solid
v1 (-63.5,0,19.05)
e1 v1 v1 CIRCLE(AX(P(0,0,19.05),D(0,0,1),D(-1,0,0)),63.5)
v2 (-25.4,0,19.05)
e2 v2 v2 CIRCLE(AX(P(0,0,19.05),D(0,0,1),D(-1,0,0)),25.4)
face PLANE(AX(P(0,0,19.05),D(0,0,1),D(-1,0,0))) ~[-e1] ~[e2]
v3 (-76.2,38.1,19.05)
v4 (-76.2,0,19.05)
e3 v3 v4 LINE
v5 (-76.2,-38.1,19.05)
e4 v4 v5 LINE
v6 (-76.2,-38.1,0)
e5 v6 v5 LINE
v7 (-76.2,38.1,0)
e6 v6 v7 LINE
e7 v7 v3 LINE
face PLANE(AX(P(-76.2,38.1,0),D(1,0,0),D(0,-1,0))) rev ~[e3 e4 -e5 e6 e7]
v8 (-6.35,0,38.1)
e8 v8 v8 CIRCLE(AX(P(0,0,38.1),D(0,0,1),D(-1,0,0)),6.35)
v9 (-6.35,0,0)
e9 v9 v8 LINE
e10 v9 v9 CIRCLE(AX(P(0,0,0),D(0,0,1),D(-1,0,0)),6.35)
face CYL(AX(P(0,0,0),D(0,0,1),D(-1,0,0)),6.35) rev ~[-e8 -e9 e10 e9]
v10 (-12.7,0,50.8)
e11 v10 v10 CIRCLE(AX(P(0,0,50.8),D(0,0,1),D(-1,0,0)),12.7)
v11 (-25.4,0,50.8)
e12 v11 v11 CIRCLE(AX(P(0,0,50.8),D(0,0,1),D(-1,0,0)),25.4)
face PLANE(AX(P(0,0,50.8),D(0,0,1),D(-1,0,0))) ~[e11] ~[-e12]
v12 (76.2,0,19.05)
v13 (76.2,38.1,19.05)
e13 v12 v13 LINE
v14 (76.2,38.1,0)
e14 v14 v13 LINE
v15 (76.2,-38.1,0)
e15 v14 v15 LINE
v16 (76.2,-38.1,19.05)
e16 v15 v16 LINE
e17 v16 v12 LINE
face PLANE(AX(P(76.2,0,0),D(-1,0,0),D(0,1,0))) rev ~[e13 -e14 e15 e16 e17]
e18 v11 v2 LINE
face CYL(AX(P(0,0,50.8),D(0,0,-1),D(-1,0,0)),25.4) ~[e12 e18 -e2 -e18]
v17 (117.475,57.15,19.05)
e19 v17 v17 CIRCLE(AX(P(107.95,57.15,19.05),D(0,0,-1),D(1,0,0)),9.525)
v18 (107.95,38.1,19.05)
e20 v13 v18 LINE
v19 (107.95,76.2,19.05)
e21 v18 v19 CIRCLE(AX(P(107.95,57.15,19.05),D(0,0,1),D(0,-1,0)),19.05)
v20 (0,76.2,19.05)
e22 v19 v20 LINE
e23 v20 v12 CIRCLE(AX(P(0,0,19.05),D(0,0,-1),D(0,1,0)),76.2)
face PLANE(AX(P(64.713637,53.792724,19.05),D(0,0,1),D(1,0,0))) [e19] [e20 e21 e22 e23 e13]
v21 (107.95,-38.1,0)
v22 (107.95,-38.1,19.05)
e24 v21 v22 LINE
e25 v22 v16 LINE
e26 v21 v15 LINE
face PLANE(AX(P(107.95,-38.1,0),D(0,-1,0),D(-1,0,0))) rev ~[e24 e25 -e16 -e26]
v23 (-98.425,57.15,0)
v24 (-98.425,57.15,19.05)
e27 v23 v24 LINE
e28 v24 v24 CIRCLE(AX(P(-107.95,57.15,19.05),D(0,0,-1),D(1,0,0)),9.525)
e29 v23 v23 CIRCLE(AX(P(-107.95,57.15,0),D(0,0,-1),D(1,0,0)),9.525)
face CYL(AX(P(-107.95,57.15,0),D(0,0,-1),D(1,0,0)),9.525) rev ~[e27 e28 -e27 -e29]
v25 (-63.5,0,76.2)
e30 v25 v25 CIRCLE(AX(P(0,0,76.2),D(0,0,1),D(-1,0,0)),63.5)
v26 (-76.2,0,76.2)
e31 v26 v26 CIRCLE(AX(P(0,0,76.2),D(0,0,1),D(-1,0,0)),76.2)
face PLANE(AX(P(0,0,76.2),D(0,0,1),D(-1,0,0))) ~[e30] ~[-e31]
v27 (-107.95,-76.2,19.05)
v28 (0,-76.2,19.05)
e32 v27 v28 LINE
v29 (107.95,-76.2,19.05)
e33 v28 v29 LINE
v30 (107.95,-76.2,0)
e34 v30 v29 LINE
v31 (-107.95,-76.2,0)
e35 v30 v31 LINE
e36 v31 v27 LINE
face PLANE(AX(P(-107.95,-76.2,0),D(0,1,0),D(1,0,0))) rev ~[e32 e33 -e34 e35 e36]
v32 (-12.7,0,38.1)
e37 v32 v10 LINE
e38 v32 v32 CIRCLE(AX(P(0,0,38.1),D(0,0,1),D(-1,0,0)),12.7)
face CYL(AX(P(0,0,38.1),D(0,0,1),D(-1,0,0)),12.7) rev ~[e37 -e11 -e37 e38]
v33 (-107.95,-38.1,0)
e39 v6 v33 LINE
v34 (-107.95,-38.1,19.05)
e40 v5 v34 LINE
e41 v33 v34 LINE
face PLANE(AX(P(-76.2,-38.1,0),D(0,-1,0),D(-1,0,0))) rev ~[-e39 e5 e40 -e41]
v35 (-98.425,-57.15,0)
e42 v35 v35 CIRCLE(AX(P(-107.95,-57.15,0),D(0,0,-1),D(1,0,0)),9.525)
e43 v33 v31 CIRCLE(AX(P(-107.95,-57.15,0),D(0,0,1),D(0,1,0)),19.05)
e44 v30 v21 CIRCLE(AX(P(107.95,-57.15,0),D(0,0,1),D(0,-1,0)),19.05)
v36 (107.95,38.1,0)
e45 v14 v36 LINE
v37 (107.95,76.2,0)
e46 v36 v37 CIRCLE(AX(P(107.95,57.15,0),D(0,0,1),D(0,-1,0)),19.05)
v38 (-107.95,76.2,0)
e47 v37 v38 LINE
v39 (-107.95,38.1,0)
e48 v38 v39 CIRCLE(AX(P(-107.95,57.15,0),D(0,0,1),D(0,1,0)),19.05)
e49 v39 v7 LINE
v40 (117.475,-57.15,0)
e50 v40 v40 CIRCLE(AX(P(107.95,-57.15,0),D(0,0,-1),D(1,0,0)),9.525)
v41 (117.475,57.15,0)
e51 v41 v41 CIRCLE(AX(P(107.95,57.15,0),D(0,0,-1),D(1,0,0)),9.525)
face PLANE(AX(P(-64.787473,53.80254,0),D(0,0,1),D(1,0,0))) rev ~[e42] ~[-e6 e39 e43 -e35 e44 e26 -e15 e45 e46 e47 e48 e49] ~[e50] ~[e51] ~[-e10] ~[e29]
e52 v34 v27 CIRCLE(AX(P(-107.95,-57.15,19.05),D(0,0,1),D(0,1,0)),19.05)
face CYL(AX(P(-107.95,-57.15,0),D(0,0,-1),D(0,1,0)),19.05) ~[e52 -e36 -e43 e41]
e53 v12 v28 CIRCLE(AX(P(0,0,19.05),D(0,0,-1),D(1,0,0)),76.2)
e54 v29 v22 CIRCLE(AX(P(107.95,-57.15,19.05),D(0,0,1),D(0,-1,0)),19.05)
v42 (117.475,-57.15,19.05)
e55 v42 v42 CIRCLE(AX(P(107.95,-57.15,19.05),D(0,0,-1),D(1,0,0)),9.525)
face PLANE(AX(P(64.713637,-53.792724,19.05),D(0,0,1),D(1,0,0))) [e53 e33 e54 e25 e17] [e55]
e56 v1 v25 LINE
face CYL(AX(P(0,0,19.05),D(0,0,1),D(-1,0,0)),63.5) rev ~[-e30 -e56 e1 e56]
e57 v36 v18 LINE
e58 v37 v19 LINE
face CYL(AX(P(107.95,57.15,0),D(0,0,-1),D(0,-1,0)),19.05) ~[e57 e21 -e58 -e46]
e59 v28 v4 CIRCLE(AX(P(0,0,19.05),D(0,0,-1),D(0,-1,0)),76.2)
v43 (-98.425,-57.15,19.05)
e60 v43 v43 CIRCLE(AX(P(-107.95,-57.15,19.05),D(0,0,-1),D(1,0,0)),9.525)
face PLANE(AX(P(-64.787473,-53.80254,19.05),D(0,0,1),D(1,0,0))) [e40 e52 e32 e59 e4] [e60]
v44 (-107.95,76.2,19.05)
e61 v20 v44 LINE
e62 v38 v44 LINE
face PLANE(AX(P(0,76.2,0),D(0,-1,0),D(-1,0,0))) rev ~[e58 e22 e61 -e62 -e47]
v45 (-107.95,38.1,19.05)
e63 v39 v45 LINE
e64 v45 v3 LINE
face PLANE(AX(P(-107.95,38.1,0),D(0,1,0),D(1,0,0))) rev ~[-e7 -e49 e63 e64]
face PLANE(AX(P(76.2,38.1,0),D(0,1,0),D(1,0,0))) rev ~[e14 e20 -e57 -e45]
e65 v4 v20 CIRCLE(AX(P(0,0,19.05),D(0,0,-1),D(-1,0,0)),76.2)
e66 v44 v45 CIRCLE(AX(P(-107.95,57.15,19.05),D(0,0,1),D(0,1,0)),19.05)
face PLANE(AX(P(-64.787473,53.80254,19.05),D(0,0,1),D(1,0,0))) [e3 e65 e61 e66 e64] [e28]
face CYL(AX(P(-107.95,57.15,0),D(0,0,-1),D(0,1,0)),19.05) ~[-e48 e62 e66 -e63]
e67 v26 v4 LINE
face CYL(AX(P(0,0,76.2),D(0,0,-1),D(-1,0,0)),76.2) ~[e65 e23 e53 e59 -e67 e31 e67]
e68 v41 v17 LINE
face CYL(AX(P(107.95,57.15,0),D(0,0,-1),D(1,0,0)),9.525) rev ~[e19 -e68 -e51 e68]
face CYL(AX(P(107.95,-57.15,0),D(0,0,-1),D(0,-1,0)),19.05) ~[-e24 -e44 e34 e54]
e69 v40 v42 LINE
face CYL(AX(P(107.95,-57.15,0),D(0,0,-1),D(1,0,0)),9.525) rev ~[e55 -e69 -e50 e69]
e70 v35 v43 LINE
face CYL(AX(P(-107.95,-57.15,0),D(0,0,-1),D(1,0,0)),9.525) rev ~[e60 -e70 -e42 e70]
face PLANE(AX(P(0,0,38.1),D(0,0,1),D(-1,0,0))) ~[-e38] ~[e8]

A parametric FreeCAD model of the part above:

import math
import FreeCAD as App
import Part
import Sketcher

V = App.Vector
Q = App.Units.Quantity


def add_polygon(sketch, points):
    """Adds a closed chain of lines whose ends are joined by coincident constraints."""
    first, n = sketch.GeometryCount, len(points)
    for a, b in zip(points, points[1:] + points[:1]):
        sketch.addGeometry(Part.LineSegment(App.Vector(*a, 0), App.Vector(*b, 0)), False)
    for i in range(n):
        sketch.addConstraint(Sketcher.Constraint("Coincident", first + i, 2, first + (i + 1) % n, 1))

doc = App.newDocument("Part")
body = doc.addObject("PartDesign::Body", "Body")

# Sketch on XZ plane
sketch1 = body.newObject("Sketcher::SketchObject", "Sketch")
sketch1.AttachmentSupport = (doc.getObject("XZ_Plane"), [""])
sketch1.MapMode = "FlatFace"
add_polygon(sketch1, [(-76.2, 0), (-6.35, 0), (-6.35, 38.1), (-12.7, 38.1), (-12.7, 50.8), (-25.4, 50.8), (-25.4, 19.05), (-63.5, 19.05), (-63.5, 76.2), (-76.2, 76.2)])  # lines 0-9
sketch1.addConstraint([
    Sketcher.Constraint("Horizontal", 0),
    Sketcher.Constraint("Vertical", 1),
    Sketcher.Constraint("Horizontal", 2),
    Sketcher.Constraint("Vertical", 3),
    Sketcher.Constraint("Horizontal", 4),
    Sketcher.Constraint("Vertical", 5),
    Sketcher.Constraint("Horizontal", 6),
    Sketcher.Constraint("Vertical", 7),
    Sketcher.Constraint("Horizontal", 8),
    Sketcher.Constraint("Vertical", 9),
    Sketcher.Constraint("PointOnObject", 0, 2, -1),
    Sketcher.Constraint("Equal", 4, 8),
    Sketcher.Constraint("Equal", 6, 1),
    Sketcher.Constraint("Equal", 8, 3),
    Sketcher.Constraint("DistanceY", 9, 2, 9, 1, Q("3 in")),
    Sketcher.Constraint("DistanceX", 4, 2, 4, 1, Q("0.5 in")),
    Sketcher.Constraint("DistanceX", 6, 2, 6, 1, Q("1.5 in")),
    Sketcher.Constraint("DistanceX", 4, 2, -1, 1, Q("1 in")),
    Sketcher.Constraint("DistanceX", 0, 1, 0, 2, Q("2.75 in")),
    Sketcher.Constraint("DistanceY", 5, 2, 5, 1, Q("1.25 in")),
])
revolution = body.newObject("PartDesign::Revolution", "Revolution")
revolution.Profile = sketch1
revolution.ReferenceAxis = (sketch1, ["V_Axis"])
revolution.Angle = 360

# Sketch on XY plane
sketch2 = body.newObject("Sketcher::SketchObject", "Sketch001")
sketch2.AttachmentSupport = (doc.getObject("XY_Plane"), [""])
sketch2.MapMode = "FlatFace"
sketch2.addGeometry([
    Part.ArcOfCircle(Part.Circle(V(0, 0, 0), V(0, 0, 1), 76.2), math.radians(90), math.radians(180)),  # 0
    Part.LineSegment(V(0, 76.2, 0), V(-107.95, 76.2, 0)),  # 1
    Part.ArcOfCircle(Part.Circle(V(-107.95, 57.15, 0), V(0, 0, 1), 19.05), math.radians(90), math.radians(270)),  # 2
    Part.LineSegment(V(-107.95, 38.1, 0), V(-76.2, 38.1, 0)),  # 3
    Part.LineSegment(V(-76.2, 38.1, 0), V(-76.2, 0, 0)),  # 4
    Part.Circle(V(-107.95, 57.15, 0), V(0, 0, 1), 9.525),  # 5
    Part.LineSegment(V(-107.95, -76.2, 0), V(0, -76.2, 0)),  # 6
    Part.ArcOfCircle(Part.Circle(V(0, 0, 0), V(0, 0, 1), 76.2), math.radians(180), math.radians(270)),  # 7
    Part.LineSegment(V(-76.2, 0, 0), V(-76.2, -38.1, 0)),  # 8
    Part.LineSegment(V(-76.2, -38.1, 0), V(-107.95, -38.1, 0)),  # 9
    Part.ArcOfCircle(Part.Circle(V(-107.95, -57.15, 0), V(0, 0, 1), 19.05), math.radians(90), math.radians(270)),  # 10
    Part.Circle(V(-107.95, -57.15, 0), V(0, 0, 1), 9.525),  # 11
    Part.LineSegment(V(76.2, -38.1, 0), V(76.2, 0, 0)),  # 12
    Part.ArcOfCircle(Part.Circle(V(0, 0, 0), V(0, 0, 1), 76.2), math.radians(-90), math.radians(0)),  # 13
    Part.LineSegment(V(0, -76.2, 0), V(107.95, -76.2, 0)),  # 14
    Part.ArcOfCircle(Part.Circle(V(107.95, -57.15, 0), V(0, 0, 1), 19.05), math.radians(-90), math.radians(90)),  # 15
    Part.LineSegment(V(107.95, -38.1, 0), V(76.2, -38.1, 0)),  # 16
    Part.Circle(V(107.95, -57.15, 0), V(0, 0, 1), 9.525),  # 17
    Part.ArcOfCircle(Part.Circle(V(0, 0, 0), V(0, 0, 1), 76.2), math.radians(0), math.radians(90)),  # 18
    Part.LineSegment(V(76.2, 0, 0), V(76.2, 38.1, 0)),  # 19
    Part.LineSegment(V(76.2, 38.1, 0), V(107.95, 38.1, 0)),  # 20
    Part.ArcOfCircle(Part.Circle(V(107.95, 57.15, 0), V(0, 0, 1), 19.05), math.radians(-90), math.radians(90)),  # 21
    Part.LineSegment(V(107.95, 76.2, 0), V(0, 76.2, 0)),  # 22
    Part.Circle(V(107.95, 57.15, 0), V(0, 0, 1), 9.525),  # 23
], False)
sketch2.addConstraint([
    Sketcher.Constraint("Tangent", 0, 1, 1, 1),
    Sketcher.Constraint("Tangent", 1, 2, 2, 1),
    Sketcher.Constraint("Tangent", 2, 2, 3, 1),
    Sketcher.Constraint("Coincident", 3, 2, 4, 1),
    Sketcher.Constraint("Tangent", 4, 2, 0, 2),
    Sketcher.Constraint("Tangent", 6, 2, 7, 2),
    Sketcher.Constraint("Tangent", 7, 1, 8, 1),
    Sketcher.Constraint("Coincident", 8, 2, 9, 1),
    Sketcher.Constraint("Tangent", 9, 2, 10, 1),
    Sketcher.Constraint("Tangent", 10, 2, 6, 1),
    Sketcher.Constraint("Tangent", 12, 2, 13, 2),
    Sketcher.Constraint("Tangent", 13, 1, 14, 1),
    Sketcher.Constraint("Tangent", 14, 2, 15, 1),
    Sketcher.Constraint("Tangent", 15, 2, 16, 1),
    Sketcher.Constraint("Coincident", 16, 2, 12, 1),
    Sketcher.Constraint("Tangent", 18, 1, 19, 1),
    Sketcher.Constraint("Coincident", 19, 2, 20, 1),
    Sketcher.Constraint("Tangent", 20, 2, 21, 1),
    Sketcher.Constraint("Tangent", 21, 2, 22, 1),
    Sketcher.Constraint("Tangent", 22, 2, 18, 2),
    Sketcher.Constraint("Horizontal", 1),
    Sketcher.Constraint("Horizontal", 3),
    Sketcher.Constraint("Vertical", 4),
    Sketcher.Constraint("Horizontal", 6),
    Sketcher.Constraint("Vertical", 8),
    Sketcher.Constraint("Horizontal", 9),
    Sketcher.Constraint("Vertical", 12),
    Sketcher.Constraint("Horizontal", 14),
    Sketcher.Constraint("Horizontal", 16),
    Sketcher.Constraint("Vertical", 19),
    Sketcher.Constraint("Horizontal", 20),
    Sketcher.Constraint("Horizontal", 22),
    Sketcher.Constraint("Coincident", 0, 3, -1, 1),
    Sketcher.Constraint("Coincident", 7, 3, -1, 1),
    Sketcher.Constraint("Coincident", 13, 3, -1, 1),
    Sketcher.Constraint("Coincident", 18, 3, -1, 1),
    Sketcher.Constraint("Coincident", 5, 3, 2, 3),
    Sketcher.Constraint("Coincident", 11, 3, 10, 3),
    Sketcher.Constraint("Coincident", 17, 3, 15, 3),
    Sketcher.Constraint("Coincident", 23, 3, 21, 3),
    Sketcher.Constraint("Equal", 0, 7),
    Sketcher.Constraint("Equal", 2, 10),
    Sketcher.Constraint("Equal", 5, 11),
    Sketcher.Constraint("Equal", 7, 13),
    Sketcher.Constraint("Equal", 10, 15),
    Sketcher.Constraint("Equal", 11, 17),
    Sketcher.Constraint("Equal", 13, 18),
    Sketcher.Constraint("Equal", 15, 21),
    Sketcher.Constraint("Equal", 17, 23),
    Sketcher.Constraint("Vertical", 5, 3, 10, 3),
    Sketcher.Constraint("Vertical", 17, 3, 21, 3),
    Sketcher.Constraint("Equal", 6, 14),
    Sketcher.Constraint("Radius", 0, Q("3 in")),
    Sketcher.Constraint("Diameter", 5, Q("0.75 in")),
    Sketcher.Constraint("Radius", 2, Q("0.75 in")),
    Sketcher.Constraint("DistanceX", 1, 2, 1, 1, Q("4.25 in")),
])
pad1 = body.newObject("PartDesign::Pad", "Pad")
pad1.Profile = sketch2
pad1.Length = Q("0.75 in")

doc.recompute()
